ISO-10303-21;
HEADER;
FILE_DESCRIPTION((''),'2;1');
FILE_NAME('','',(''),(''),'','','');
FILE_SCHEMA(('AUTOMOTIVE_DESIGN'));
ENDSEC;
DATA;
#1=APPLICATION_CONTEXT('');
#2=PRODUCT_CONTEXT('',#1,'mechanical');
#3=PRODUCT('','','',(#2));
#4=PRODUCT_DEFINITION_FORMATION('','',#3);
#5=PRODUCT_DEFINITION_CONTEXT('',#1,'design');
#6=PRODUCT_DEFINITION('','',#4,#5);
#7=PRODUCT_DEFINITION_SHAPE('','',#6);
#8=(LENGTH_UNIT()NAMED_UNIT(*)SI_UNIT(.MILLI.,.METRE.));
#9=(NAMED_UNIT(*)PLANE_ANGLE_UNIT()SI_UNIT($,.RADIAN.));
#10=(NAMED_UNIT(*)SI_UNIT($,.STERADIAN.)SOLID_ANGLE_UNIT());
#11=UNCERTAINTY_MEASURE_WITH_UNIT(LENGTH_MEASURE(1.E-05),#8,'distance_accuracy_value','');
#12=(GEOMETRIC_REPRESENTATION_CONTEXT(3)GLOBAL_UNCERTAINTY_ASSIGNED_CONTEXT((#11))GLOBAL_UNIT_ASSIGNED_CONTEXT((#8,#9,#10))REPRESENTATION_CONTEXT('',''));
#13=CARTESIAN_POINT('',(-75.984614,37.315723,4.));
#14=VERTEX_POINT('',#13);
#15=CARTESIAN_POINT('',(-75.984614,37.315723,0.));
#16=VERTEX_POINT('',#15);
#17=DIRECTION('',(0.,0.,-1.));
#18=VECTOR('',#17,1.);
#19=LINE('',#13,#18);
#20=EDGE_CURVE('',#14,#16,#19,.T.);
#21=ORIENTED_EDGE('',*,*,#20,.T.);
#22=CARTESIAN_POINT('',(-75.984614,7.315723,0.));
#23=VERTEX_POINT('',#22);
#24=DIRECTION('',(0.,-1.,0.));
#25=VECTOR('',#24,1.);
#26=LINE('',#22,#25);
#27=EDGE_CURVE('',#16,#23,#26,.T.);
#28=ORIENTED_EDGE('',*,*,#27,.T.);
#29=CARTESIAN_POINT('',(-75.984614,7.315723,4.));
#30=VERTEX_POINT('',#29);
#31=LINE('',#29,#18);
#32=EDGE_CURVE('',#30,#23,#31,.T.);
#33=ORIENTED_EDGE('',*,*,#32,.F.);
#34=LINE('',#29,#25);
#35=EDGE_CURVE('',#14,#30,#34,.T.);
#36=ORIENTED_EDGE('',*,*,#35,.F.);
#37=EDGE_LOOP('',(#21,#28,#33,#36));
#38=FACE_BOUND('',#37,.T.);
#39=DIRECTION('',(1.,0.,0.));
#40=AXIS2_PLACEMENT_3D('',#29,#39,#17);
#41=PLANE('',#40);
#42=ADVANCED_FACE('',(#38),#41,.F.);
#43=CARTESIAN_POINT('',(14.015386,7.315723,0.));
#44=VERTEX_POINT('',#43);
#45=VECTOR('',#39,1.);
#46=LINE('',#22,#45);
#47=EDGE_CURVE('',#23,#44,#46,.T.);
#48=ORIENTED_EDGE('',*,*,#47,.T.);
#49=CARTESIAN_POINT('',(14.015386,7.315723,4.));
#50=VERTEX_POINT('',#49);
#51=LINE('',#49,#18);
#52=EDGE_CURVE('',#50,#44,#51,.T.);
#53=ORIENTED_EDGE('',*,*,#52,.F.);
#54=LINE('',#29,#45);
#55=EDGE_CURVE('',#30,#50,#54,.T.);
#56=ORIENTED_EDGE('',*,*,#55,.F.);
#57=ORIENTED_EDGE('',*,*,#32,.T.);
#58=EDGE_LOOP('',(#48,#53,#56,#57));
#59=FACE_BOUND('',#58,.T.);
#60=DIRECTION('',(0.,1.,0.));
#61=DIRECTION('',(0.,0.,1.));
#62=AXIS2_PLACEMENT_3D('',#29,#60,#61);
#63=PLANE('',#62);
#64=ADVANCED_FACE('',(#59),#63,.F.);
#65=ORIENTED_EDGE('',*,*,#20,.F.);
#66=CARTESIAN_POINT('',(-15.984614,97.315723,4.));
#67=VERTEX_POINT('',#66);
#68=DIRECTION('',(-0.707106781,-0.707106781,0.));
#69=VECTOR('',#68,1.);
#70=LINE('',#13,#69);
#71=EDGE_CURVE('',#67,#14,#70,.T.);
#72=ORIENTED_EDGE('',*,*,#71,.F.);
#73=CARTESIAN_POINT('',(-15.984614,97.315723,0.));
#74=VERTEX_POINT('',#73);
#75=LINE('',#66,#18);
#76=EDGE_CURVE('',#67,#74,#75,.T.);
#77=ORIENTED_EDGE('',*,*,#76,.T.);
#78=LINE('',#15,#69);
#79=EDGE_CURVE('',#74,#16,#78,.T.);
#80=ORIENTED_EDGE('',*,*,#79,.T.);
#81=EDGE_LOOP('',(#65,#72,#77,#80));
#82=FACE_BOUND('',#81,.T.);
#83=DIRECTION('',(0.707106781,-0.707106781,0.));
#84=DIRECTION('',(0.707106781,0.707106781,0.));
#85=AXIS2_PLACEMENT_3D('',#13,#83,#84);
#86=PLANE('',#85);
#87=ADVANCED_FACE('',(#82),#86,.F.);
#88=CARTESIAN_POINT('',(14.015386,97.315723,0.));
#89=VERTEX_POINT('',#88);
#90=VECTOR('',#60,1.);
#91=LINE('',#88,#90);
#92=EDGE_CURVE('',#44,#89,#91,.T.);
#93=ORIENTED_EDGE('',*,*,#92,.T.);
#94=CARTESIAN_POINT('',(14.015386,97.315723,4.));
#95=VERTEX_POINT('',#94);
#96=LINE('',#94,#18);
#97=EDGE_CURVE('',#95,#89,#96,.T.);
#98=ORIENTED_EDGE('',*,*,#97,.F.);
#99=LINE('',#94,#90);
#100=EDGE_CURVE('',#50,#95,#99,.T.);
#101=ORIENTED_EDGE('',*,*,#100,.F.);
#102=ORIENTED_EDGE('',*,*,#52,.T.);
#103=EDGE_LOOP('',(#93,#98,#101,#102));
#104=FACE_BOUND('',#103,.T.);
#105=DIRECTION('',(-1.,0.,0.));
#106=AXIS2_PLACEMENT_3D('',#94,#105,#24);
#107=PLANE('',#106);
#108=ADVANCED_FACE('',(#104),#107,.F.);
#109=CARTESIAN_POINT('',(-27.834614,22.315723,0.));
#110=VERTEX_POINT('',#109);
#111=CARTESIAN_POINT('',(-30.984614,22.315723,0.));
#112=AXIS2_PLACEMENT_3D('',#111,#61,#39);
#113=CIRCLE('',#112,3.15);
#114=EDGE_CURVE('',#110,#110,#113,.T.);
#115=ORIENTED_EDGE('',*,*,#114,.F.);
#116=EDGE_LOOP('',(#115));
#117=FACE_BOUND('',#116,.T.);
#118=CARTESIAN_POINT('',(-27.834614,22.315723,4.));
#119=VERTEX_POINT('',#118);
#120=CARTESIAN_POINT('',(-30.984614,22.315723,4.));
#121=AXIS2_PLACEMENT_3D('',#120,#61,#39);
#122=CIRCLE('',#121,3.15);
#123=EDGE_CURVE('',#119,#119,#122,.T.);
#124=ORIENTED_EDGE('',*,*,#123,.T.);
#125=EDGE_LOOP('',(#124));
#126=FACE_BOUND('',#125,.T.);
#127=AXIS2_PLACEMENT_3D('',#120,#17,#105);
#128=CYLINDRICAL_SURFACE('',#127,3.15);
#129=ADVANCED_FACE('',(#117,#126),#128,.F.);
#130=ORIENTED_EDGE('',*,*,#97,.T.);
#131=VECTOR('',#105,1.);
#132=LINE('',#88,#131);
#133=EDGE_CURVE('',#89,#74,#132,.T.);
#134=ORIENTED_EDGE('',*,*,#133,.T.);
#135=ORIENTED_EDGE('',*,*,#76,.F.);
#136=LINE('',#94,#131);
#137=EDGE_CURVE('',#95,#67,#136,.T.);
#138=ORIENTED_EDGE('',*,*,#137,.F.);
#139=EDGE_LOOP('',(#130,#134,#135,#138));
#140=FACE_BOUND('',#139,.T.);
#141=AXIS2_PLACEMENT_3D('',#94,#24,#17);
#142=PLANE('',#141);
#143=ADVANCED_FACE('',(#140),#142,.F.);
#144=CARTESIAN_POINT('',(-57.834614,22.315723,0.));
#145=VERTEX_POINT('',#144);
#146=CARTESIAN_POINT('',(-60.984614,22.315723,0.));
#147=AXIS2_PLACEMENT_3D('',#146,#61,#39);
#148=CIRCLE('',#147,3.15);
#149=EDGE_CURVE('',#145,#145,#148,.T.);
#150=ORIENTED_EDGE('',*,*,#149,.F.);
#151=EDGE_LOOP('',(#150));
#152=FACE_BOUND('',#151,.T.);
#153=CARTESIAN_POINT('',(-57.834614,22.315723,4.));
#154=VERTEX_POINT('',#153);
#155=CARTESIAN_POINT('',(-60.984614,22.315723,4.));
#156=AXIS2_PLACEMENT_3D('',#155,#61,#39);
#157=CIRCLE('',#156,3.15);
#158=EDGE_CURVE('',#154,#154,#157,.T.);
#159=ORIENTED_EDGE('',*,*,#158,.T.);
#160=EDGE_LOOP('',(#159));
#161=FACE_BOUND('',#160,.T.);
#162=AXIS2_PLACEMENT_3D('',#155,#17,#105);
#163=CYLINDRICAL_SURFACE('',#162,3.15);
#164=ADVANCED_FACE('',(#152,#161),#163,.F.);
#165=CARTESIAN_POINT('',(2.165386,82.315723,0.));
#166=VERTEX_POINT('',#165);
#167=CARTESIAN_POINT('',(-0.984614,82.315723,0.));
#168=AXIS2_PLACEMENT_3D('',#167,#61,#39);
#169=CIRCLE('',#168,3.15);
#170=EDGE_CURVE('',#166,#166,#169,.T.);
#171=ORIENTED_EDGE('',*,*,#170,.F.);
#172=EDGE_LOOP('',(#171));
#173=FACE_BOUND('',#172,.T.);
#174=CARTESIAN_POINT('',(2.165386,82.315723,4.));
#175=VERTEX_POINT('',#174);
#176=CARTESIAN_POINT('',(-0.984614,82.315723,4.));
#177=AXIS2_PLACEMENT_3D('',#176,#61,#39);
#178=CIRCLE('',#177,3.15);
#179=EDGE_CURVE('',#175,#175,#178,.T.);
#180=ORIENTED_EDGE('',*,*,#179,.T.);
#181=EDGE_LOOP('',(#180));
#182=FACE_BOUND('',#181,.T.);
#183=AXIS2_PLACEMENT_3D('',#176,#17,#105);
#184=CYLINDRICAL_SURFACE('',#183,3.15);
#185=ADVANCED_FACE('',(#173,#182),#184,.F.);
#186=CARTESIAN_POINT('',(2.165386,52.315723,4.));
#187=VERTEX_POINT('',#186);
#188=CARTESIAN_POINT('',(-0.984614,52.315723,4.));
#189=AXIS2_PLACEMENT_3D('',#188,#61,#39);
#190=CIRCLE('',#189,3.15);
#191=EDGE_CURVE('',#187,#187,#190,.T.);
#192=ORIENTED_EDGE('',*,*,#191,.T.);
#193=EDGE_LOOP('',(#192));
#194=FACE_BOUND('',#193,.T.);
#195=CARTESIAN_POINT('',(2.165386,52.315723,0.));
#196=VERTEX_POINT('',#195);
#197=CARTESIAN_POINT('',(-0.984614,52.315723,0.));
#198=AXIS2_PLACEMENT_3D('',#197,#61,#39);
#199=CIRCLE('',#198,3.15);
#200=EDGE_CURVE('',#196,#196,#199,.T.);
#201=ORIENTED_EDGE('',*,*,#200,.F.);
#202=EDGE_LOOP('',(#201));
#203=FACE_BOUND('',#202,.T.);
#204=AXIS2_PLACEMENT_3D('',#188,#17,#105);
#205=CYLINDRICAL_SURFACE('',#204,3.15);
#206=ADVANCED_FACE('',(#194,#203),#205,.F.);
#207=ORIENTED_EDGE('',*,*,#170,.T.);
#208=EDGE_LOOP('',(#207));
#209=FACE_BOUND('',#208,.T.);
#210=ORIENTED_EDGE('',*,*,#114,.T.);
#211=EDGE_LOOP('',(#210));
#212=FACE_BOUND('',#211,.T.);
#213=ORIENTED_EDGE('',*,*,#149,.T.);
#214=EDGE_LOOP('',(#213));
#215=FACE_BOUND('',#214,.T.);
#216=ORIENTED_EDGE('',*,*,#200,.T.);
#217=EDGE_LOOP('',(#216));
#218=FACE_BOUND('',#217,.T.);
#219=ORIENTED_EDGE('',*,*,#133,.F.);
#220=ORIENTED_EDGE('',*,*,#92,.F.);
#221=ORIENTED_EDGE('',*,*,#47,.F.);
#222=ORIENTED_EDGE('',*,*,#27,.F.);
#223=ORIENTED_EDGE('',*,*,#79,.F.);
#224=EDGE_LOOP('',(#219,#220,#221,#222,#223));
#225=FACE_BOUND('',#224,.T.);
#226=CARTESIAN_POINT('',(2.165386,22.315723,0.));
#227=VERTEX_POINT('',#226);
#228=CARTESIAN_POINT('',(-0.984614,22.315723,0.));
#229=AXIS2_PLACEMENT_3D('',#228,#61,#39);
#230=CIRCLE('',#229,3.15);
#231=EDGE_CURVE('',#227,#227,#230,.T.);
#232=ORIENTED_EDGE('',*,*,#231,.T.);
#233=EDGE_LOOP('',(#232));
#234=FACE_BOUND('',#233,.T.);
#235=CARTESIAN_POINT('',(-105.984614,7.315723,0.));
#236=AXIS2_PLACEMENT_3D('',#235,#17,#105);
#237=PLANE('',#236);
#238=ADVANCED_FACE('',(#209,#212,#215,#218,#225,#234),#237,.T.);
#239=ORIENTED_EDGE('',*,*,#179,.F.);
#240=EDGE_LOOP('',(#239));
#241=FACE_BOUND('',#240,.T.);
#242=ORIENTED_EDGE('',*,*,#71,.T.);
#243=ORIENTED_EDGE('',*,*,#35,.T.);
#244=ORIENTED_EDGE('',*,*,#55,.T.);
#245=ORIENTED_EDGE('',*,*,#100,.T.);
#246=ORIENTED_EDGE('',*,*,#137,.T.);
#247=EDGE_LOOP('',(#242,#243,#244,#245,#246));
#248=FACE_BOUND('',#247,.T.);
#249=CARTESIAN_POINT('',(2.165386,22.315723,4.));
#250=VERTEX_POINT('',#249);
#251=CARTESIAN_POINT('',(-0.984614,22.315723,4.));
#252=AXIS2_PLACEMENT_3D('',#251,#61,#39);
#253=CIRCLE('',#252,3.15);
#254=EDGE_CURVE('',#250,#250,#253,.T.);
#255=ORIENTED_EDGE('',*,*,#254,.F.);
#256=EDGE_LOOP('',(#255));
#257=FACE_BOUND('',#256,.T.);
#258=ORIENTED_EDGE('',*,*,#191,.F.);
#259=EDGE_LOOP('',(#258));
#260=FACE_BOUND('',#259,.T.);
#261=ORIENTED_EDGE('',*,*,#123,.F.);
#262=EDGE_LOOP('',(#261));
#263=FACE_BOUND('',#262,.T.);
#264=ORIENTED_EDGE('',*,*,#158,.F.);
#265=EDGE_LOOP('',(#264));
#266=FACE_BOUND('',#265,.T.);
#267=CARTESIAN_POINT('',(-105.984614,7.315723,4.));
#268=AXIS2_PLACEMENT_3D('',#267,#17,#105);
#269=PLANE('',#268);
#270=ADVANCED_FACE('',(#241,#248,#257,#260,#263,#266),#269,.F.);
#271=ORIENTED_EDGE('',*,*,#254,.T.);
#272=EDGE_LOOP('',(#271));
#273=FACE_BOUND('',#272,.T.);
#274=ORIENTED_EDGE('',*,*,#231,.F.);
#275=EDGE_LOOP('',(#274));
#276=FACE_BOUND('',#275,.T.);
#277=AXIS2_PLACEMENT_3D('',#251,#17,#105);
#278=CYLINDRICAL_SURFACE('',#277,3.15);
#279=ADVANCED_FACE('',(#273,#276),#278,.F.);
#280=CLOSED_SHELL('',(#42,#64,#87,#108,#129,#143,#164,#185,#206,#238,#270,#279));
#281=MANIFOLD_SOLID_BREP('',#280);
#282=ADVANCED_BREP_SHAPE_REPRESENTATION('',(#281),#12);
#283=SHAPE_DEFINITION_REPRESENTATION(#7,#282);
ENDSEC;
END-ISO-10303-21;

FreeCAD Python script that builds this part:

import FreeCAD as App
import Part
import Sketcher

V = App.Vector


def add_polygon(sketch, points):
    """Adds a closed chain of lines whose ends are joined by coincident constraints."""
    first, n = sketch.GeometryCount, len(points)
    for a, b in zip(points, points[1:] + points[:1]):
        sketch.addGeometry(Part.LineSegment(App.Vector(*a, 0), App.Vector(*b, 0)), False)
    for i in range(n):
        sketch.addConstraint(Sketcher.Constraint("Coincident", first + i, 2, first + (i + 1) % n, 1))

doc = App.newDocument("Part")
body = doc.addObject("PartDesign::Body", "Body")

# Sketch on XY plane
sketch1 = body.newObject("Sketcher::SketchObject", "Sketch")
sketch1.AttachmentSupport = (doc.getObject("XY_Plane"), [""])
sketch1.MapMode = "FlatFace"
add_polygon(sketch1, [(14.015386, 97.315723), (-15.984614, 97.315723), (-75.984614, 37.315723), (-75.984614, 7.315723), (14.015386, 7.315723)])  # lines 0-4
sketch1.addGeometry(Part.Circle(V(-60.984614, 22.315723, 0), V(0, 0, 1), 3.15), False)  # 5
sketch1.addGeometry(Part.Circle(V(-30.984614, 22.315723, 0), V(0, 0, 1), 3.15), False)  # 6
sketch1.addGeometry(Part.Circle(V(-0.984614, 22.315723, 0), V(0, 0, 1), 3.15), False)  # 7
sketch1.addGeometry(Part.Circle(V(-0.984614, 52.315723, 0), V(0, 0, 1), 3.15), False)  # 8
sketch1.addGeometry(Part.Circle(V(-0.984614, 82.315723, 0), V(0, 0, 1), 3.15), False)  # 9
sketch1.addConstraint(Sketcher.Constraint("Horizontal", 0))
sketch1.addConstraint(Sketcher.Constraint("Vertical", 2))
sketch1.addConstraint(Sketcher.Constraint("Horizontal", 3))
sketch1.addConstraint(Sketcher.Constraint("Vertical", 4))
sketch1.addConstraint(Sketcher.Constraint("Equal", 5, 6))
sketch1.addConstraint(Sketcher.Constraint("Equal", 6, 7))
sketch1.addConstraint(Sketcher.Constraint("Equal", 7, 8))
sketch1.addConstraint(Sketcher.Constraint("Equal", 8, 9))
sketch1.addConstraint(Sketcher.Constraint("Horizontal", 5, 3, 6, 3))
sketch1.addConstraint(Sketcher.Constraint("Horizontal", 6, 3, 7, 3))
sketch1.addConstraint(Sketcher.Constraint("Vertical", 7, 3, 8, 3))
sketch1.addConstraint(Sketcher.Constraint("Vertical", 8, 3, 9, 3))
sketch1.addConstraint(Sketcher.Constraint("Equal", 0, 2))
sketch1.addConstraint(Sketcher.Constraint("Equal", 3, 4))
sketch1.addConstraint(Sketcher.Constraint("Diameter", 5, 6.3))
sketch1.addConstraint(Sketcher.Constraint("DistanceX", 0, 2, 0, 1, 30.0))
sketch1.addConstraint(Sketcher.Constraint("DistanceX", 3, 1, 3, 2, 90.0))
sketch1.addConstraint(Sketcher.Constraint("DistanceX", 5, 3, 6, 3, 30.0))
sketch1.addConstraint(Sketcher.Constraint("DistanceX", 6, 3, 7, 3, 30.0))
sketch1.addConstraint(Sketcher.Constraint("DistanceY", 7, 3, 8, 3, 30.0))
sketch1.addConstraint(Sketcher.Constraint("DistanceY", 8, 3, 9, 3, 30.0))
sketch1.addConstraint(Sketcher.Constraint("DistanceX", 0, 2, 9, 3, 15.0))
sketch1.addConstraint(Sketcher.Constraint("DistanceY", 9, 3, 0, 2, 15.0))
sketch1.addConstraint(Sketcher.Constraint("DistanceX", 5, 3, -1, 1, 60.984614))
sketch1.addConstraint(Sketcher.Constraint("DistanceY", -1, 1, 5, 3, 22.315723))
pad1 = body.newObject("PartDesign::Pad", "Pad")
pad1.Profile = sketch1
pad1.Length = 4

doc.recompute()
